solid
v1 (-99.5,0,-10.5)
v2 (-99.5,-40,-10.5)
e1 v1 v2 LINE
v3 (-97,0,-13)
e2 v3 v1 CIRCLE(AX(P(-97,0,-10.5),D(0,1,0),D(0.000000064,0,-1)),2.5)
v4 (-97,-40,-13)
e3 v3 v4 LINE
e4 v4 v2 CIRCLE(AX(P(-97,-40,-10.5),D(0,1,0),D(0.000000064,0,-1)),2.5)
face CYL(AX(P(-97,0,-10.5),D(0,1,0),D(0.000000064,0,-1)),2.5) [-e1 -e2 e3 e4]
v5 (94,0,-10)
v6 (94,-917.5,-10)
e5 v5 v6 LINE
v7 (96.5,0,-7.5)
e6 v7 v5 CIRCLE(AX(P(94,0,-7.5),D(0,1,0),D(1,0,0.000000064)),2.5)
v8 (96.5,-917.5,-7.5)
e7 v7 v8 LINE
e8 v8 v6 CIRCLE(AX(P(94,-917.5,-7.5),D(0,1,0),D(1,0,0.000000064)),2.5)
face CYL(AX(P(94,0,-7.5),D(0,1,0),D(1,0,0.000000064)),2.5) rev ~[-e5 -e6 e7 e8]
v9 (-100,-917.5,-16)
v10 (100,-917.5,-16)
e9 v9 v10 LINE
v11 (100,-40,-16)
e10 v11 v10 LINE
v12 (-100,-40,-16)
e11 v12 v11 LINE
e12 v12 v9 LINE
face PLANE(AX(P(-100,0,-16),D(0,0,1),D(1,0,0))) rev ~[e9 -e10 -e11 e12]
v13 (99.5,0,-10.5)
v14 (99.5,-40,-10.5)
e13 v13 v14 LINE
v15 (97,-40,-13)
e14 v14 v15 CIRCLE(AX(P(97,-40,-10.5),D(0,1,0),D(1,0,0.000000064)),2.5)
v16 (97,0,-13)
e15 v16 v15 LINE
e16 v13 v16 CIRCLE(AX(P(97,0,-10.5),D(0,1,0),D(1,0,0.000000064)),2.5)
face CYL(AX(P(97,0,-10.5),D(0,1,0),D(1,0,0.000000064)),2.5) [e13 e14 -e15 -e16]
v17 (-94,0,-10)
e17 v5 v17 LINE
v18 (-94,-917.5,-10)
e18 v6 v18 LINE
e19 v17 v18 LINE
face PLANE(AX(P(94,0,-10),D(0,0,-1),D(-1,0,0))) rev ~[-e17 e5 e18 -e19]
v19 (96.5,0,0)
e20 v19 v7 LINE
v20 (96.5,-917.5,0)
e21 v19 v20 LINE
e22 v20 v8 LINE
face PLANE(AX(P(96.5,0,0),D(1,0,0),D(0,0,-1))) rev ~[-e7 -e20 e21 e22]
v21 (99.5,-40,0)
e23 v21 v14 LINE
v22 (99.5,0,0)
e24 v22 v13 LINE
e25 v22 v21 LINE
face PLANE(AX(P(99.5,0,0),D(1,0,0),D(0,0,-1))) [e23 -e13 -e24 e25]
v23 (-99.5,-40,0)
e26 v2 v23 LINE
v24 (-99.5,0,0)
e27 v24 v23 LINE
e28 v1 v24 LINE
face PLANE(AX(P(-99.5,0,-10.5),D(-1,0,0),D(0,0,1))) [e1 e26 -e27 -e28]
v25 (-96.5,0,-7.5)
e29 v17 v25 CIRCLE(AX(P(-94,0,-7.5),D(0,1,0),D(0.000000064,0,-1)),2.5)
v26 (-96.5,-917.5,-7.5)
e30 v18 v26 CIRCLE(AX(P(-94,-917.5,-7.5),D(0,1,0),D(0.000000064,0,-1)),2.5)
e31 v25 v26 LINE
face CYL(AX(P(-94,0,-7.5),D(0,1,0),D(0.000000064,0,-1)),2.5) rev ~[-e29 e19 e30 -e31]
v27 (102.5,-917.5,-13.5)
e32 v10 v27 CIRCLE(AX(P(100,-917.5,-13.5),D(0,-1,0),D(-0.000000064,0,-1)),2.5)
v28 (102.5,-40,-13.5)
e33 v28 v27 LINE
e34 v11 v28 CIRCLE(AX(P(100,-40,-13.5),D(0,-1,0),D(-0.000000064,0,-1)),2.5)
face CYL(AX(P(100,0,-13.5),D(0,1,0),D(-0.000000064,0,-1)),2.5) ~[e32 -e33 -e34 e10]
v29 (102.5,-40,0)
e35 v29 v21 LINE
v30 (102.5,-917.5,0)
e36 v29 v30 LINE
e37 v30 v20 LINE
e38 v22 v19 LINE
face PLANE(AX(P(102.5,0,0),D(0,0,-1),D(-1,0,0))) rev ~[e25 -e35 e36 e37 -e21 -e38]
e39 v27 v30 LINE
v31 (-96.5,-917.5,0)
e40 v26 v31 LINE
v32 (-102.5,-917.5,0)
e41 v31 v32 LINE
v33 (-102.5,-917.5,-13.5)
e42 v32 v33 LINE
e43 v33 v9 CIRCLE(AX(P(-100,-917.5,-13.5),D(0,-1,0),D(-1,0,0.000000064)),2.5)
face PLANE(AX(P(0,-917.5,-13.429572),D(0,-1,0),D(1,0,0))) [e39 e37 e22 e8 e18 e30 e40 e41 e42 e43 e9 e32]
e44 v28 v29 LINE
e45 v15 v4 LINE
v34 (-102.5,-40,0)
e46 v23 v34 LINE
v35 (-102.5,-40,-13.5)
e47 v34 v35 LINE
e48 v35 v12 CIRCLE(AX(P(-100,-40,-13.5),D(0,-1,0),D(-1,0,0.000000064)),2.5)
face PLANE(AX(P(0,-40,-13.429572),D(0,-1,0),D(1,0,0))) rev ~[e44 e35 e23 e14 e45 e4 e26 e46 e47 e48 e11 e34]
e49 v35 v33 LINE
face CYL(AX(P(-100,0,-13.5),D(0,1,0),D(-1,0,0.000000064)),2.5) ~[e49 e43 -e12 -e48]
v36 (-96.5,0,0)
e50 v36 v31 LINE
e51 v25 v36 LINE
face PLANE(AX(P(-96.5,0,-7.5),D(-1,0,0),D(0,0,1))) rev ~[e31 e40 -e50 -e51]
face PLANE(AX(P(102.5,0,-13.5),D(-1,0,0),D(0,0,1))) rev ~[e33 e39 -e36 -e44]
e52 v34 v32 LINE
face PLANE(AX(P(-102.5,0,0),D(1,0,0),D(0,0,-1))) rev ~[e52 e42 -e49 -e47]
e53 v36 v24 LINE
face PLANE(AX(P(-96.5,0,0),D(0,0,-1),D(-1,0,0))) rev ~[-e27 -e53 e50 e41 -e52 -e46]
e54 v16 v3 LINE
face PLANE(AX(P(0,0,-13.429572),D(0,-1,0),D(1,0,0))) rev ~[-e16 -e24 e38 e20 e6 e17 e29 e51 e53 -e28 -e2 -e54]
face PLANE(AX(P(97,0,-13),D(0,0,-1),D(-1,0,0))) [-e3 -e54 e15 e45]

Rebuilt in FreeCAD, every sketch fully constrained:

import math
import FreeCAD as App
import Part
import Sketcher
from FreeCAD import Vector
Q = App.Units.Quantity

doc = App.newDocument("Part")
body = doc.addObject("PartDesign::Body", "Body")

sketch1 = doc.addObject("Sketcher::SketchObject", "Sketch")
body.addObject(sketch1)
sketch1.AttachmentSupport = (doc.XZ_Plane, [""])
sketch1.MapMode = "FlatFace"
sketch1.addGeometry(Part.ArcOfCircle(Part.Circle(Vector(-100, -13.5, 0), Vector(0, 0, 1), 2.5), math.radians(180), math.radians(270)), False)
sketch1.addGeometry(Part.LineSegment(Vector(-100, -16, 0), Vector(100, -16, 0)), False)
sketch1.addGeometry(Part.ArcOfCircle(Part.Circle(Vector(100, -13.5, 0), Vector(0, 0, 1), 2.5), math.radians(-90), math.radians(0)), False)
sketch1.addGeometry(Part.LineSegment(Vector(102.5, -13.5, 0), Vector(102.5, 0, 0)), False)
sketch1.addGeometry(Part.LineSegment(Vector(102.5, 0, 0), Vector(96.5, 0, 0)), False)
sketch1.addGeometry(Part.LineSegment(Vector(96.5, 0, 0), Vector(96.5, -7.5, 0)), False)
sketch1.addGeometry(Part.ArcOfCircle(Part.Circle(Vector(94, -7.5, 0), Vector(0, 0, 1), 2.5), math.radians(-90), math.radians(0)), False)
sketch1.addGeometry(Part.LineSegment(Vector(94, -10, 0), Vector(-94, -10, 0)), False)
sketch1.addGeometry(Part.ArcOfCircle(Part.Circle(Vector(-94, -7.5, 0), Vector(0, 0, 1), 2.5), math.radians(180), math.radians(270)), False)
sketch1.addGeometry(Part.LineSegment(Vector(-96.5, -7.5, 0), Vector(-96.5, 0, 0)), False)
sketch1.addGeometry(Part.LineSegment(Vector(-96.5, 0, 0), Vector(-102.5, 0, 0)), False)
sketch1.addGeometry(Part.LineSegment(Vector(-102.5, 0, 0), Vector(-102.5, -13.5, 0)), False)
sketch1.addConstraint(Sketcher.Constraint("Tangent", 0, 2, 1, 1))
sketch1.addConstraint(Sketcher.Constraint("Tangent", 1, 2, 2, 1))
sketch1.addConstraint(Sketcher.Constraint("Tangent", 2, 2, 3, 1))
sketch1.addConstraint(Sketcher.Constraint("Coincident", 3, 2, 4, 1))
sketch1.addConstraint(Sketcher.Constraint("Coincident", 4, 2, 5, 1))
sketch1.addConstraint(Sketcher.Constraint("Tangent", 5, 2, 6, 2))
sketch1.addConstraint(Sketcher.Constraint("Tangent", 6, 1, 7, 1))
sketch1.addConstraint(Sketcher.Constraint("Tangent", 7, 2, 8, 2))
sketch1.addConstraint(Sketcher.Constraint("Tangent", 8, 1, 9, 1))
sketch1.addConstraint(Sketcher.Constraint("Coincident", 9, 2, 10, 1))
sketch1.addConstraint(Sketcher.Constraint("Coincident", 10, 2, 11, 1))
sketch1.addConstraint(Sketcher.Constraint("Tangent", 11, 2, 0, 1))
sketch1.addConstraint(Sketcher.Constraint("Horizontal", 1))
sketch1.addConstraint(Sketcher.Constraint("Vertical", 3))
sketch1.addConstraint(Sketcher.Constraint("Horizontal", 4))
sketch1.addConstraint(Sketcher.Constraint("Vertical", 5))
sketch1.addConstraint(Sketcher.Constraint("Horizontal", 7))
sketch1.addConstraint(Sketcher.Constraint("Vertical", 9))
sketch1.addConstraint(Sketcher.Constraint("Horizontal", 10))
sketch1.addConstraint(Sketcher.Constraint("Vertical", 11))
sketch1.addConstraint(Sketcher.Constraint("Equal", 0, 2))
sketch1.addConstraint(Sketcher.Constraint("Equal", 2, 6))
sketch1.addConstraint(Sketcher.Constraint("Equal", 6, 8))
sketch1.addConstraint(Sketcher.Constraint("Symmetric", 4, 2, 9, 2, -1, 1))
sketch1.addConstraint(Sketcher.Constraint("Symmetric", 3, 2, 10, 2, -2))
sketch1.addConstraint(Sketcher.Constraint("Radius", 0, Q("2.5 mm")))
sketch1.addConstraint(Sketcher.Constraint("DistanceX", 1, 1, 1, 2, Q("200 mm")))
sketch1.addConstraint(Sketcher.Constraint("DistanceX", 4, 2, 4, 1, Q("6 mm")))
sketch1.addConstraint(Sketcher.Constraint("DistanceY", 3, 1, 3, 2, Q("13.5 mm")))
sketch1.addConstraint(Sketcher.Constraint("DistanceY", 5, 2, 5, 1, Q("7.5 mm")))
pad1 = doc.addObject("PartDesign::Pad", "Pad")
body.addObject(pad1)
pad1.Profile = sketch1
pad1.Length = 917.5

sketch2 = doc.addObject("Sketcher::SketchObject", "Sketch001")
body.addObject(sketch2)
sketch2.AttachmentSupport = (doc.XZ_Plane, [""])
sketch2.MapMode = "FlatFace"
sketch2.addGeometry(Part.ArcOfCircle(Part.Circle(Vector(-100, -13.5, 0), Vector(0, 0, 1), 2.5), math.radians(180), math.radians(270)), False)
sketch2.addGeometry(Part.LineSegment(Vector(-100, -16, 0), Vector(100, -16, 0)), False)
sketch2.addGeometry(Part.ArcOfCircle(Part.Circle(Vector(100, -13.5, 0), Vector(0, 0, 1), 2.5), math.radians(-90), math.radians(0)), False)
sketch2.addGeometry(Part.LineSegment(Vector(102.5, -13.5, 0), Vector(102.5, 0, 0)), False)
sketch2.addGeometry(Part.LineSegment(Vector(102.5, 0, 0), Vector(99.5, 0, 0)), False)
sketch2.addGeometry(Part.LineSegment(Vector(99.5, 0, 0), Vector(99.5, -10.5, 0)), False)
sketch2.addGeometry(Part.ArcOfCircle(Part.Circle(Vector(97, -10.5, 0), Vector(0, 0, 1), 2.5), math.radians(-90), math.radians(0)), False)
sketch2.addGeometry(Part.LineSegment(Vector(97, -13, 0), Vector(-97, -13, 0)), False)
sketch2.addGeometry(Part.ArcOfCircle(Part.Circle(Vector(-97, -10.5, 0), Vector(0, 0, 1), 2.5), math.radians(180), math.radians(270)), False)
sketch2.addGeometry(Part.LineSegment(Vector(-99.5, -10.5, 0), Vector(-99.5, 0, 0)), False)
sketch2.addGeometry(Part.LineSegment(Vector(-99.5, 0, 0), Vector(-102.5, 0, 0)), False)
sketch2.addGeometry(Part.LineSegment(Vector(-102.5, 0, 0), Vector(-102.5, -13.5, 0)), False)
sketch2.addConstraint(Sketcher.Constraint("Tangent", 0, 2, 1, 1))
sketch2.addConstraint(Sketcher.Constraint("Tangent", 1, 2, 2, 1))
sketch2.addConstraint(Sketcher.Constraint("Tangent", 2, 2, 3, 1))
sketch2.addConstraint(Sketcher.Constraint("Coincident", 3, 2, 4, 1))
sketch2.addConstraint(Sketcher.Constraint("Coincident", 4, 2, 5, 1))
sketch2.addConstraint(Sketcher.Constraint("Tangent", 5, 2, 6, 2))
sketch2.addConstraint(Sketcher.Constraint("Tangent", 6, 1, 7, 1))
sketch2.addConstraint(Sketcher.Constraint("Tangent", 7, 2, 8, 2))
sketch2.addConstraint(Sketcher.Constraint("Tangent", 8, 1, 9, 1))
sketch2.addConstraint(Sketcher.Constraint("Coincident", 9, 2, 10, 1))
sketch2.addConstraint(Sketcher.Constraint("Coincident", 10, 2, 11, 1))
sketch2.addConstraint(Sketcher.Constraint("Tangent", 11, 2, 0, 1))
sketch2.addConstraint(Sketcher.Constraint("Horizontal", 1))
sketch2.addConstraint(Sketcher.Constraint("Vertical", 3))
sketch2.addConstraint(Sketcher.Constraint("Horizontal", 4))
sketch2.addConstraint(Sketcher.Constraint("Vertical", 5))
sketch2.addConstraint(Sketcher.Constraint("Horizontal", 7))
sketch2.addConstraint(Sketcher.Constraint("Vertical", 9))
sketch2.addConstraint(Sketcher.Constraint("Horizontal", 10))
sketch2.addConstraint(Sketcher.Constraint("Vertical", 11))
sketch2.addConstraint(Sketcher.Constraint("Equal", 0, 2))
sketch2.addConstraint(Sketcher.Constraint("Equal", 2, 6))
sketch2.addConstraint(Sketcher.Constraint("Equal", 6, 8))
sketch2.addConstraint(Sketcher.Constraint("Symmetric", 4, 2, 9, 2, -1, 1))
sketch2.addConstraint(Sketcher.Constraint("Symmetric", 3, 2, 10, 2, -2))
sketch2.addConstraint(Sketcher.Constraint("Radius", 0, Q("2.5 mm")))
sketch2.addConstraint(Sketcher.Constraint("DistanceX", 1, 1, 1, 2, Q("200 mm")))
sketch2.addConstraint(Sketcher.Constraint("DistanceX", 4, 2, 4, 1, Q("3 mm")))
sketch2.addConstraint(Sketcher.Constraint("DistanceY", 3, 1, 3, 2, Q("13.5 mm")))
sketch2.addConstraint(Sketcher.Constraint("DistanceY", 5, 2, 5, 1, Q("10.5 mm")))
pocket1 = doc.addObject("PartDesign::Pocket", "Pocket")
body.addObject(pocket1)
pocket1.Profile = sketch2
pocket1.Length = 40
pocket1.Reversed = True

doc.recompute()
